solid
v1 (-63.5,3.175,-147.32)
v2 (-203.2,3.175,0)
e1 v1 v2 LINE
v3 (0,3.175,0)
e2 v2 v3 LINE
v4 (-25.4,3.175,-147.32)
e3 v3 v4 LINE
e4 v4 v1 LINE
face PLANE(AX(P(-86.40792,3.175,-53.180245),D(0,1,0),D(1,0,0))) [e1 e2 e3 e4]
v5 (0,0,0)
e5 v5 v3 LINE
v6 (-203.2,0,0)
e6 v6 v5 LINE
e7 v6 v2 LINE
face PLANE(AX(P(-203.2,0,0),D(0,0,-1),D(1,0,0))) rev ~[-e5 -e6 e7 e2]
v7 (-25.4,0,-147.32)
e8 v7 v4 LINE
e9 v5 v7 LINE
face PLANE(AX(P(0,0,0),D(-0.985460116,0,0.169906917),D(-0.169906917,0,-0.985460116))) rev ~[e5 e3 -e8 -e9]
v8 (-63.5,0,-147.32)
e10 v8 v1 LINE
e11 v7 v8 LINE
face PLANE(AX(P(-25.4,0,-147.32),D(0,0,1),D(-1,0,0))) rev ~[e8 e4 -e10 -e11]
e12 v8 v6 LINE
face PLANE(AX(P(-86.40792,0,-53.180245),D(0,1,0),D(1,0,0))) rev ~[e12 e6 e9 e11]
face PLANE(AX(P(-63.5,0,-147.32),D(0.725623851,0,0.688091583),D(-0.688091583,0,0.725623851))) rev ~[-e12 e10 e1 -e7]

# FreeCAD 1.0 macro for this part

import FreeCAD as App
import Part
import Sketcher
from FreeCAD import Vector
Q = App.Units.Quantity

doc = App.newDocument("Part")
body = doc.addObject("PartDesign::Body", "Body")

sketch1 = body.newObject("Sketcher::SketchObject", "Sketch")
sketch1.AttachmentSupport = (doc.getObject("XZ_Plane"), [""])
sketch1.MapMode = "FlatFace"
sketch1.addGeometry([
    Part.LineSegment(Vector(-203.2, 0, 0), Vector(0, 0, 0)),
    Part.LineSegment(Vector(0, 0, 0), Vector(-25.4, -147.32, 0)),
    Part.LineSegment(Vector(-25.4, -147.32, 0), Vector(-63.5, -147.32, 0)),
    Part.LineSegment(Vector(-63.5, -147.32, 0), Vector(-203.2, 0, 0)),
], False)
sketch1.addConstraint([
    Sketcher.Constraint("Coincident", 0, 2, 1, 1),
    Sketcher.Constraint("Coincident", 1, 2, 2, 1),
    Sketcher.Constraint("Coincident", 2, 2, 3, 1),
    Sketcher.Constraint("Coincident", 3, 2, 0, 1),
    Sketcher.Constraint("Horizontal", 0),
    Sketcher.Constraint("Horizontal", 2),
    Sketcher.Constraint("Coincident", 0, 2, -1, 1),
    Sketcher.Constraint("DistanceX", 0, 1, 0, 2, Q("8 in")),
    Sketcher.Constraint("DistanceX", 2, 2, 2, 1, Q("1.5 in")),
    Sketcher.Constraint("DistanceX", 1, 2, -1, 1, Q("1 in")),
    Sketcher.Constraint("DistanceY", 1, 2, -1, 1, Q("5.8 in")),
])
pad1 = body.newObject("PartDesign::Pad", "Pad")
pad1.Profile = sketch1
pad1.Length = Q("0.125 in")
pad1.Reversed = True

doc.recompute()
